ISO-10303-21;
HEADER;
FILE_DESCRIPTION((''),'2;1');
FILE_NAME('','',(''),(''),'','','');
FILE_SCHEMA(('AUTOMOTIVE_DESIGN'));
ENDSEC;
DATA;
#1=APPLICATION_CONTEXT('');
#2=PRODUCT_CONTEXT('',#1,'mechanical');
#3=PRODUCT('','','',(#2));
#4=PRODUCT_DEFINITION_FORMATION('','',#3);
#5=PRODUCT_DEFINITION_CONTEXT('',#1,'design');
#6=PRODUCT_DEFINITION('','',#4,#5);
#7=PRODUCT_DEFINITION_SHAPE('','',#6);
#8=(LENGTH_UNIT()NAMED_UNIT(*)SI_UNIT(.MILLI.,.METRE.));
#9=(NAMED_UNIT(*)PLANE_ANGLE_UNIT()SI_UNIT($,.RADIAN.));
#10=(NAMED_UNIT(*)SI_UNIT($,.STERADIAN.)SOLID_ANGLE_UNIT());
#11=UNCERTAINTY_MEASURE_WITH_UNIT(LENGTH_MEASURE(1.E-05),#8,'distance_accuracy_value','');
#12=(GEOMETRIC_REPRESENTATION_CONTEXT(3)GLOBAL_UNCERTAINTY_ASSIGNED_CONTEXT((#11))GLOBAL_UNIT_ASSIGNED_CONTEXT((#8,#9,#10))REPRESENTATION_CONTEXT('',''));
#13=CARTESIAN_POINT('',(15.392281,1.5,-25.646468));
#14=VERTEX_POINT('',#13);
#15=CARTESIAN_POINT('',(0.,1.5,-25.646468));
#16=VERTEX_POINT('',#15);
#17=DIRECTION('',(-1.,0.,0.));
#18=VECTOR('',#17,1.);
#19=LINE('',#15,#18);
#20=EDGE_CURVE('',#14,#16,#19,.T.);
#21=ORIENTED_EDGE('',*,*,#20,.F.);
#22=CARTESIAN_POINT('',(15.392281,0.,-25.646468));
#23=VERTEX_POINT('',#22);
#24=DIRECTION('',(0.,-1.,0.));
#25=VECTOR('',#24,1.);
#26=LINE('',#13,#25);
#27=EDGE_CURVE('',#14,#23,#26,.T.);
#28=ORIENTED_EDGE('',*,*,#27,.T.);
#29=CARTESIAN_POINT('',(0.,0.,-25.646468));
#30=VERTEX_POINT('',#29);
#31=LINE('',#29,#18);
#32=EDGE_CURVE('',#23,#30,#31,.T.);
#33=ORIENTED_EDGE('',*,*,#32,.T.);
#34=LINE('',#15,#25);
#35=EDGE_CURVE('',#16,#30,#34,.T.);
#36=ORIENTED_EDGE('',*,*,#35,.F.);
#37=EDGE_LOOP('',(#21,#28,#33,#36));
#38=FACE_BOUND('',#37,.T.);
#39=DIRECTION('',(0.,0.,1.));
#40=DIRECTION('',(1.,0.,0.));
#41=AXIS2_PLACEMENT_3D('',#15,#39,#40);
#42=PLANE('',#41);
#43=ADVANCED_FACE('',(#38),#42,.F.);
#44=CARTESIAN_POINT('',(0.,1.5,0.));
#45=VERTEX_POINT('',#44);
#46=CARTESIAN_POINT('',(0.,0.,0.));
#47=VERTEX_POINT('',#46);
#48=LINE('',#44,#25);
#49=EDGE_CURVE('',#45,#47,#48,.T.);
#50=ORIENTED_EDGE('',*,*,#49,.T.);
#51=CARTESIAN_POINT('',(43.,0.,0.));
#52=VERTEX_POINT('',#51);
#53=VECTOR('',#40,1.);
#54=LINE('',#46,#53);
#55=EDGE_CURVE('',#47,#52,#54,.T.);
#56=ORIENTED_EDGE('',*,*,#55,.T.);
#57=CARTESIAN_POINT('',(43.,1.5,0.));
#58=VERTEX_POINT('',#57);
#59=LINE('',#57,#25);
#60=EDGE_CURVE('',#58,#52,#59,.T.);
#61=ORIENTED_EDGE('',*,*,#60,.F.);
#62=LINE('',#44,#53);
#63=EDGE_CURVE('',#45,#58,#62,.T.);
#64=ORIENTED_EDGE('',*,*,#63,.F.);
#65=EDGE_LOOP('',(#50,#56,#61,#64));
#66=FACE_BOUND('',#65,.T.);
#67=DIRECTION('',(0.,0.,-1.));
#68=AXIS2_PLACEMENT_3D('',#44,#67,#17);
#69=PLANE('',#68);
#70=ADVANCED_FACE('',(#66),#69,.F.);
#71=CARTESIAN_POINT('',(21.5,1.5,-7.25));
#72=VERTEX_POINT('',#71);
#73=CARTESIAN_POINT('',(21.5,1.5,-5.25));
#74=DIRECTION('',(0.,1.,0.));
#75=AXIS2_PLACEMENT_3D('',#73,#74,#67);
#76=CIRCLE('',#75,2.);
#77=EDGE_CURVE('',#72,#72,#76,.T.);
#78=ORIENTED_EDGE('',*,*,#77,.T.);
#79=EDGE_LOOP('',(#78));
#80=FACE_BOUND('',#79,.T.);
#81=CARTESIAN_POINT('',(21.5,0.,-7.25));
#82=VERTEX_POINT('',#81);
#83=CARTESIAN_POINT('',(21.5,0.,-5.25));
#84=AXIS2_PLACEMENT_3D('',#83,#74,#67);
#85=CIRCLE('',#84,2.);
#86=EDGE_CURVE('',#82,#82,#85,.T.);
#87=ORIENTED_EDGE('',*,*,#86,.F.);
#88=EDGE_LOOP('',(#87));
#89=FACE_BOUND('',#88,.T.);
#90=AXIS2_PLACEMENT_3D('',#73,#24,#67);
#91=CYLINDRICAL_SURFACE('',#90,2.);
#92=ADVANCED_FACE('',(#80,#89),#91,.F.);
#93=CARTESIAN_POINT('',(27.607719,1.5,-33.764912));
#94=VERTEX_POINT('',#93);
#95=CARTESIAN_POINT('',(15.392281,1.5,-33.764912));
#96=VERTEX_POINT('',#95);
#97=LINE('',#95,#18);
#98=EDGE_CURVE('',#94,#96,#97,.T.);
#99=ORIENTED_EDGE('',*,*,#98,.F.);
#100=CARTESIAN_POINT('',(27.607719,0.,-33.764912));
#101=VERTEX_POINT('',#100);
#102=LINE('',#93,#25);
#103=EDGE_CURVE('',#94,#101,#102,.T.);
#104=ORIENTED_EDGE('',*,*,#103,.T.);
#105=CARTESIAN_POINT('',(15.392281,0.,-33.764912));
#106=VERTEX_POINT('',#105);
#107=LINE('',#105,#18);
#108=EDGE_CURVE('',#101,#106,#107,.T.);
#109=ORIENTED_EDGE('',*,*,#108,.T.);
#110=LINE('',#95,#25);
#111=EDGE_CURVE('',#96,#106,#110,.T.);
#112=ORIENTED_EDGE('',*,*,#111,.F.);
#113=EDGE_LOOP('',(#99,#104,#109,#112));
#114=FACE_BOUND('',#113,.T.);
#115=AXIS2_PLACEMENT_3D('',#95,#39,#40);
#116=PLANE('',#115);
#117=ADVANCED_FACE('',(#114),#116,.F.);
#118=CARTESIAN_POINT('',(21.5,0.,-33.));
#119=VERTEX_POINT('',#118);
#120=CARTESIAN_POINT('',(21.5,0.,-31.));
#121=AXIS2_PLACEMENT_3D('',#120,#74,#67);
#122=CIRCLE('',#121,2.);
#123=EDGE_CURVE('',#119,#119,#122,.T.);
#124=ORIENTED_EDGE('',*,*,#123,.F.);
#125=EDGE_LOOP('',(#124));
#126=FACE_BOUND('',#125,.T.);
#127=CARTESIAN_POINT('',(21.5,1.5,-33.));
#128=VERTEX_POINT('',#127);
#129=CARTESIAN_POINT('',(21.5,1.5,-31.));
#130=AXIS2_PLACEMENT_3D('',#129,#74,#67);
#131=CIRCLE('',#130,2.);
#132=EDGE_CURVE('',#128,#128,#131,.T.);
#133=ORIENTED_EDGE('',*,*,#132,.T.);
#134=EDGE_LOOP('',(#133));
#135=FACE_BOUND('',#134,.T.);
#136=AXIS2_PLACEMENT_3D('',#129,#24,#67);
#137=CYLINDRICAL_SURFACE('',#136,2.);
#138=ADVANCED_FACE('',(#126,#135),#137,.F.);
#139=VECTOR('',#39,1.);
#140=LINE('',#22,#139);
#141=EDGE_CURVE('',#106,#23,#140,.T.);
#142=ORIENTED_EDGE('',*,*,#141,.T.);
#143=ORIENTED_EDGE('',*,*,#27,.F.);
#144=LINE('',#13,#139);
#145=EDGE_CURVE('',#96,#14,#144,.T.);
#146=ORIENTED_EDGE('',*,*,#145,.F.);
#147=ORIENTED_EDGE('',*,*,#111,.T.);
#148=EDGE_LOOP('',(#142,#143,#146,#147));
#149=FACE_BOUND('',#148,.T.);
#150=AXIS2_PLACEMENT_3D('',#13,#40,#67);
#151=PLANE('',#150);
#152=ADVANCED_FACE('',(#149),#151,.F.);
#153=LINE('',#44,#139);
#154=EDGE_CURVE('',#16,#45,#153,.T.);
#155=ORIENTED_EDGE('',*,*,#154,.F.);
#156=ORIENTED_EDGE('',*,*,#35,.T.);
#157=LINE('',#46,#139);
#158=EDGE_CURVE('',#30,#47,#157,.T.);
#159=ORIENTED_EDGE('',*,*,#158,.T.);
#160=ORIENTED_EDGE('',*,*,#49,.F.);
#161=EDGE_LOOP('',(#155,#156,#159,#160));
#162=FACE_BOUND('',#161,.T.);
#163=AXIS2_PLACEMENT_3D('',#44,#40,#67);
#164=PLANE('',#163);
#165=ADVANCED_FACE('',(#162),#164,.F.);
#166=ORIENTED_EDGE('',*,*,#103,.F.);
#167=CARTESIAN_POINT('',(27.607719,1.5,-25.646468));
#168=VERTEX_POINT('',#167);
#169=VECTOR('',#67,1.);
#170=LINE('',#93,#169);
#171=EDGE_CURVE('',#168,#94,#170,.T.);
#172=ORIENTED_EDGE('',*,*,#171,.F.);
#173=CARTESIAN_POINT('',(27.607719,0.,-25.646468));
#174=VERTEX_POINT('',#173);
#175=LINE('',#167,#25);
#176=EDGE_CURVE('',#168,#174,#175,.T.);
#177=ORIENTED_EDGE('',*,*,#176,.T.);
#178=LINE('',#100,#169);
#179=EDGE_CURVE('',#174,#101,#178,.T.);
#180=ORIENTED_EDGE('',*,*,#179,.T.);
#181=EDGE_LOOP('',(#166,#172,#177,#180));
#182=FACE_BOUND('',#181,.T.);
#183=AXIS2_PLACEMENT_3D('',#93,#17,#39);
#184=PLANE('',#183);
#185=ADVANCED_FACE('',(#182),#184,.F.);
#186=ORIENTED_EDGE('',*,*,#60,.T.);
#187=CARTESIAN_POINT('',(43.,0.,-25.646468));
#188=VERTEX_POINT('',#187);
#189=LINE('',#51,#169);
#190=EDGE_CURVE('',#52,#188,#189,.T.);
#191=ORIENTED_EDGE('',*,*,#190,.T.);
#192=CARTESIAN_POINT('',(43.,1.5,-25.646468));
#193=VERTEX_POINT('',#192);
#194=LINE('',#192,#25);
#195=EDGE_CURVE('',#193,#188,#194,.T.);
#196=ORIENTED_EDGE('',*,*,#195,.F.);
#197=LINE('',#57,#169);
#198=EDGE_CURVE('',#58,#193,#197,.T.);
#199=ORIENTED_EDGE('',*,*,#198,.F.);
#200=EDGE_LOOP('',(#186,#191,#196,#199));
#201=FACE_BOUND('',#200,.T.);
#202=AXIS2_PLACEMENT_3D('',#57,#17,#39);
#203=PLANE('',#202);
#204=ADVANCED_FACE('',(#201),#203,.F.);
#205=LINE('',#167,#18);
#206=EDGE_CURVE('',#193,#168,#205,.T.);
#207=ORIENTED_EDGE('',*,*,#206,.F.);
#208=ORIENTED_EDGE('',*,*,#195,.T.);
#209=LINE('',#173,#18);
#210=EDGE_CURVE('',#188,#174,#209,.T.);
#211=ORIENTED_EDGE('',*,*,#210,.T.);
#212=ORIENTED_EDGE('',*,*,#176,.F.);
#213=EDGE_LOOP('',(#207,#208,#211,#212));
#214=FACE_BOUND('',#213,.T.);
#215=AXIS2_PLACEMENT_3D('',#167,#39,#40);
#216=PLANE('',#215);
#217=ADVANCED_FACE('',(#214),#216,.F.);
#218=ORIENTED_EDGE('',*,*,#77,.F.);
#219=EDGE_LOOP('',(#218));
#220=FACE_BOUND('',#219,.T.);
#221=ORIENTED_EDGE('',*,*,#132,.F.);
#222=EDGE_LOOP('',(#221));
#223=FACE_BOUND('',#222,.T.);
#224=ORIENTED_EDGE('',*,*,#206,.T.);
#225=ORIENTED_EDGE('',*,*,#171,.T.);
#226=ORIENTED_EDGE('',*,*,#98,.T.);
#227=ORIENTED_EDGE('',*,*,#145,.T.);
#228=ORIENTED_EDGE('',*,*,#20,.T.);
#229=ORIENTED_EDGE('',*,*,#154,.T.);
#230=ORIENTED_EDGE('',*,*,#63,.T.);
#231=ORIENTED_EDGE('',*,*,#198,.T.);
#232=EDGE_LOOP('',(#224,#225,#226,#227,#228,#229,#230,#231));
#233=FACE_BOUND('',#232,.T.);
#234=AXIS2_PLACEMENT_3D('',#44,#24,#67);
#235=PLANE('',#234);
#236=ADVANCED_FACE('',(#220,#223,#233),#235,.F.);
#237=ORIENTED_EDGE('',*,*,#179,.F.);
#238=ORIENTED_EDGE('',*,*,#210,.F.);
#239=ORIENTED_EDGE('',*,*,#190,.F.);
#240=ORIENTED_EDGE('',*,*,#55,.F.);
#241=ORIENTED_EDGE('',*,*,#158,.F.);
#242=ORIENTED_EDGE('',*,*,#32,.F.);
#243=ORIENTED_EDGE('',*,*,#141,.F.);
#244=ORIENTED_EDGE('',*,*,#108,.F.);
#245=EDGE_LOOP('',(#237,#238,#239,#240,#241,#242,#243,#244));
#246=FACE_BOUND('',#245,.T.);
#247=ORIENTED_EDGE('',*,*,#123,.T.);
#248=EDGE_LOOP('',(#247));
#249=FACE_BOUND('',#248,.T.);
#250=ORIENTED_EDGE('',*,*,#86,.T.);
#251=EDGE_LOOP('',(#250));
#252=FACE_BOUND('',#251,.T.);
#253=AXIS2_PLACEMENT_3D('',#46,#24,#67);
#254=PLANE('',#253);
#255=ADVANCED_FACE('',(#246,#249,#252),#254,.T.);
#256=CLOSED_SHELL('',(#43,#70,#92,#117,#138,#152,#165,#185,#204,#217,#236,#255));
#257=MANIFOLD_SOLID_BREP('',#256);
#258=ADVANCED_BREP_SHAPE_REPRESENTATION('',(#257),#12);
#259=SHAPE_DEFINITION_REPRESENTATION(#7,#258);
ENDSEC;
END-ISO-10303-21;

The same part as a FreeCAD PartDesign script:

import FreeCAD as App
import Part
import Sketcher

V = App.Vector
Q = App.Units.Quantity


def add_polygon(sketch, points):
    """Adds a closed chain of lines whose ends are joined by coincident constraints."""
    first, n = sketch.GeometryCount, len(points)
    for a, b in zip(points, points[1:] + points[:1]):
        sketch.addGeometry(Part.LineSegment(App.Vector(*a, 0), App.Vector(*b, 0)), False)
    for i in range(n):
        sketch.addConstraint(Sketcher.Constraint("Coincident", first + i, 2, first + (i + 1) % n, 1))

doc = App.newDocument("Part")
body = doc.addObject("PartDesign::Body", "Body")

# Sketch on XZ plane
sketch1 = body.newObject("Sketcher::SketchObject", "Sketch")
sketch1.AttachmentSupport = (doc.getObject("XZ_Plane"), [""])
sketch1.MapMode = "FlatFace"
add_polygon(sketch1, [(15.392281, -25.646468), (0, -25.646468), (0, 0), (43, 0), (43, -25.646468), (27.607719, -25.646468), (27.607719, -33.764912), (15.392281, -33.764912)])  # lines 0-7
sketch1.addGeometry(Part.Circle(V(21.5, -5.25, 0), V(0, 0, 1), 2), False)  # 8
sketch1.addGeometry(Part.Circle(V(21.5, -31, 0), V(0, 0, 1), 2), False)  # 9
sketch1.addConstraint([
    Sketcher.Constraint("Horizontal", 0),
    Sketcher.Constraint("Vertical", 1),
    Sketcher.Constraint("Horizontal", 2),
    Sketcher.Constraint("Vertical", 3),
    Sketcher.Constraint("Horizontal", 4),
    Sketcher.Constraint("Vertical", 5),
    Sketcher.Constraint("Horizontal", 6),
    Sketcher.Constraint("Vertical", 7),
    Sketcher.Constraint("Coincident", 1, 2, -1, 1),
    Sketcher.Constraint("Equal", 8, 9),
    Sketcher.Constraint("Horizontal", 0, 2, 3, 2),
    Sketcher.Constraint("Vertical", 8, 3, 9, 3),
    Sketcher.Constraint("Equal", 0, 4),
    Sketcher.Constraint("Diameter", 8, Q("4 mm")),
    Sketcher.Constraint("DistanceX", 2, 1, 2, 2, Q("43 mm")),
    Sketcher.Constraint("DistanceY", 9, 3, -1, 1, Q("31 mm")),
    Sketcher.Constraint("DistanceX", -1, 1, 8, 3, Q("21.5 mm")),
    Sketcher.Constraint("DistanceY", 8, 3, -1, 1, Q("5.25 mm")),
    Sketcher.Constraint("DistanceX", 0, 2, 0, 1, Q("15.392281 mm")),
    Sketcher.Constraint("DistanceY", 1, 1, 1, 2, Q("25.646468 mm")),
    Sketcher.Constraint("DistanceY", 5, 2, 5, 1, Q("8.118444 mm")),
])
pad1 = body.newObject("PartDesign::Pad", "Pad")
pad1.Profile = sketch1
pad1.Length = 1.5
pad1.Reversed = True

doc.recompute()
